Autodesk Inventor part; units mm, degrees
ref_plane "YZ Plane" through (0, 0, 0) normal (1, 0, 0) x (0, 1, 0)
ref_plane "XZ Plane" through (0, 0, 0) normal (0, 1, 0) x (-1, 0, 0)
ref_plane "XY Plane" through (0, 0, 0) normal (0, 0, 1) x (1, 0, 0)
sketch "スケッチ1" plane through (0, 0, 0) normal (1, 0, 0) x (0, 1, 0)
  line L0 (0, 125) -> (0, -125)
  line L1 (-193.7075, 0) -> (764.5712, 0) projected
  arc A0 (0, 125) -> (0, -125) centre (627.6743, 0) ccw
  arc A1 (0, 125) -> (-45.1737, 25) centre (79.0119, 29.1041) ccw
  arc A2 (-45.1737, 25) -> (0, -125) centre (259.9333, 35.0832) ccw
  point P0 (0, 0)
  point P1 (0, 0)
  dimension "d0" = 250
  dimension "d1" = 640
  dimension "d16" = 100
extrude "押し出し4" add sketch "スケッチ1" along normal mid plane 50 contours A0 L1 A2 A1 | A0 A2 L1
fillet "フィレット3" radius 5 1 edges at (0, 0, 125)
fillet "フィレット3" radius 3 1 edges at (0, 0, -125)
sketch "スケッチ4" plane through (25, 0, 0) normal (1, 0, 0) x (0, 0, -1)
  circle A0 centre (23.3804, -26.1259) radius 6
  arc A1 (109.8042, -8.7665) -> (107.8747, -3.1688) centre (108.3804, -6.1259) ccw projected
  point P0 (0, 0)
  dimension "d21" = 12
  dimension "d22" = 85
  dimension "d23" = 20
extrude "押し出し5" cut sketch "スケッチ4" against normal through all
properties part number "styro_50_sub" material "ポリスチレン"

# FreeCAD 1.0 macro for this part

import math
import FreeCAD as App
import Part
import Sketcher

V = App.Vector


def edges_at(feature, points):
    """Names of the edges that pass closest to the given points."""
    edges = feature.Shape.Edges
    near = lambda p: min(range(len(edges)), key=lambda i: edges[i].distToShape(Part.Vertex(*p))[0])
    return sorted({f"Edge{near(p) + 1}" for p in points})

doc = App.newDocument("Part")
body = doc.addObject("PartDesign::Body", "Body")

# Sketch on YZ plane
sketch1 = doc.addObject("Sketcher::SketchObject", "Sketch")
body.addObject(sketch1)
sketch1.AttachmentSupport = (doc.YZ_Plane, [""])
sketch1.MapMode = "FlatFace"
sketch1.addGeometry([
    Part.ArcOfCircle(Part.Circle(V(79, 29, 0), V(0, 0, 1), 124), math.radians(129), math.radians(182)),
    Part.ArcOfCircle(Part.Circle(V(260, 35, 0), V(0, 0, 1), 305), math.radians(-178), math.radians(-148)),
    Part.ArcOfCircle(Part.Circle(V(628, 0, 0), V(0, 0, 1), 640), math.radians(169), math.radians(191)),
], False)
sketch1.addConstraint([
    Sketcher.Constraint("Tangent", 0, 2, 1, 1),
    Sketcher.Constraint("Coincident", 1, 2, 2, 2),
    Sketcher.Constraint("Coincident", 2, 1, 0, 1),
    Sketcher.Constraint("Symmetric", 1, 2, 2, 1, -1, 1),
    Sketcher.Constraint("PointOnObject", 2, 3, -1),
    Sketcher.Constraint("Radius", 2, 640.0),
    Sketcher.Constraint("DistanceY", 0, 2, 2, 1, 100.0),
    Sketcher.Constraint("DistanceY", 1, 2, 2, 1, 250.0),
    Sketcher.Constraint("Radius", 0, 124.2534),
    Sketcher.Constraint("Radius", 1, 305.2736),
])
pad1 = doc.addObject("PartDesign::Pad", "Pad")
body.addObject(pad1)
pad1.Profile = sketch1
pad1.Length = 50
pad1.Midplane = True
doc.recompute()

fillet = doc.addObject("PartDesign::Fillet", "Fillet")
body.addObject(fillet)
fillet.Base = (pad1, edges_at(pad1, [(0, 0, 125)]))
fillet.Radius = 5
doc.recompute()

fillet2 = doc.addObject("PartDesign::Fillet", "Fillet001")
body.addObject(fillet2)
fillet2.Base = (fillet, edges_at(fillet, [(0, 0, -125)]))
fillet2.Radius = 3

# Sketch on YZ plane
sketch2 = doc.addObject("Sketcher::SketchObject", "Sketch001")
body.addObject(sketch2)
sketch2.AttachmentSupport = (doc.YZ_Plane, [""])
sketch2.MapMode = "FlatFace"
sketch2.AttachmentOffset = App.Placement(V(0, 0, 25), App.Rotation())
sketch2.addGeometry(Part.Circle(V(-26, -23, 0), V(0, 0, 1), 6), False)
sketch2.addConstraint([
    Sketcher.Constraint("Diameter", 0, 12.0),
    Sketcher.Constraint("DistanceX", 0, 3, -1, 1, 26.126),
    Sketcher.Constraint("DistanceY", 0, 3, -1, 1, 23.3804),
])
pocket1 = doc.addObject("PartDesign::Pocket", "Pocket")
body.addObject(pocket1)
pocket1.Profile = sketch2
pocket1.Type = "ThroughAll"

doc.recompute()
